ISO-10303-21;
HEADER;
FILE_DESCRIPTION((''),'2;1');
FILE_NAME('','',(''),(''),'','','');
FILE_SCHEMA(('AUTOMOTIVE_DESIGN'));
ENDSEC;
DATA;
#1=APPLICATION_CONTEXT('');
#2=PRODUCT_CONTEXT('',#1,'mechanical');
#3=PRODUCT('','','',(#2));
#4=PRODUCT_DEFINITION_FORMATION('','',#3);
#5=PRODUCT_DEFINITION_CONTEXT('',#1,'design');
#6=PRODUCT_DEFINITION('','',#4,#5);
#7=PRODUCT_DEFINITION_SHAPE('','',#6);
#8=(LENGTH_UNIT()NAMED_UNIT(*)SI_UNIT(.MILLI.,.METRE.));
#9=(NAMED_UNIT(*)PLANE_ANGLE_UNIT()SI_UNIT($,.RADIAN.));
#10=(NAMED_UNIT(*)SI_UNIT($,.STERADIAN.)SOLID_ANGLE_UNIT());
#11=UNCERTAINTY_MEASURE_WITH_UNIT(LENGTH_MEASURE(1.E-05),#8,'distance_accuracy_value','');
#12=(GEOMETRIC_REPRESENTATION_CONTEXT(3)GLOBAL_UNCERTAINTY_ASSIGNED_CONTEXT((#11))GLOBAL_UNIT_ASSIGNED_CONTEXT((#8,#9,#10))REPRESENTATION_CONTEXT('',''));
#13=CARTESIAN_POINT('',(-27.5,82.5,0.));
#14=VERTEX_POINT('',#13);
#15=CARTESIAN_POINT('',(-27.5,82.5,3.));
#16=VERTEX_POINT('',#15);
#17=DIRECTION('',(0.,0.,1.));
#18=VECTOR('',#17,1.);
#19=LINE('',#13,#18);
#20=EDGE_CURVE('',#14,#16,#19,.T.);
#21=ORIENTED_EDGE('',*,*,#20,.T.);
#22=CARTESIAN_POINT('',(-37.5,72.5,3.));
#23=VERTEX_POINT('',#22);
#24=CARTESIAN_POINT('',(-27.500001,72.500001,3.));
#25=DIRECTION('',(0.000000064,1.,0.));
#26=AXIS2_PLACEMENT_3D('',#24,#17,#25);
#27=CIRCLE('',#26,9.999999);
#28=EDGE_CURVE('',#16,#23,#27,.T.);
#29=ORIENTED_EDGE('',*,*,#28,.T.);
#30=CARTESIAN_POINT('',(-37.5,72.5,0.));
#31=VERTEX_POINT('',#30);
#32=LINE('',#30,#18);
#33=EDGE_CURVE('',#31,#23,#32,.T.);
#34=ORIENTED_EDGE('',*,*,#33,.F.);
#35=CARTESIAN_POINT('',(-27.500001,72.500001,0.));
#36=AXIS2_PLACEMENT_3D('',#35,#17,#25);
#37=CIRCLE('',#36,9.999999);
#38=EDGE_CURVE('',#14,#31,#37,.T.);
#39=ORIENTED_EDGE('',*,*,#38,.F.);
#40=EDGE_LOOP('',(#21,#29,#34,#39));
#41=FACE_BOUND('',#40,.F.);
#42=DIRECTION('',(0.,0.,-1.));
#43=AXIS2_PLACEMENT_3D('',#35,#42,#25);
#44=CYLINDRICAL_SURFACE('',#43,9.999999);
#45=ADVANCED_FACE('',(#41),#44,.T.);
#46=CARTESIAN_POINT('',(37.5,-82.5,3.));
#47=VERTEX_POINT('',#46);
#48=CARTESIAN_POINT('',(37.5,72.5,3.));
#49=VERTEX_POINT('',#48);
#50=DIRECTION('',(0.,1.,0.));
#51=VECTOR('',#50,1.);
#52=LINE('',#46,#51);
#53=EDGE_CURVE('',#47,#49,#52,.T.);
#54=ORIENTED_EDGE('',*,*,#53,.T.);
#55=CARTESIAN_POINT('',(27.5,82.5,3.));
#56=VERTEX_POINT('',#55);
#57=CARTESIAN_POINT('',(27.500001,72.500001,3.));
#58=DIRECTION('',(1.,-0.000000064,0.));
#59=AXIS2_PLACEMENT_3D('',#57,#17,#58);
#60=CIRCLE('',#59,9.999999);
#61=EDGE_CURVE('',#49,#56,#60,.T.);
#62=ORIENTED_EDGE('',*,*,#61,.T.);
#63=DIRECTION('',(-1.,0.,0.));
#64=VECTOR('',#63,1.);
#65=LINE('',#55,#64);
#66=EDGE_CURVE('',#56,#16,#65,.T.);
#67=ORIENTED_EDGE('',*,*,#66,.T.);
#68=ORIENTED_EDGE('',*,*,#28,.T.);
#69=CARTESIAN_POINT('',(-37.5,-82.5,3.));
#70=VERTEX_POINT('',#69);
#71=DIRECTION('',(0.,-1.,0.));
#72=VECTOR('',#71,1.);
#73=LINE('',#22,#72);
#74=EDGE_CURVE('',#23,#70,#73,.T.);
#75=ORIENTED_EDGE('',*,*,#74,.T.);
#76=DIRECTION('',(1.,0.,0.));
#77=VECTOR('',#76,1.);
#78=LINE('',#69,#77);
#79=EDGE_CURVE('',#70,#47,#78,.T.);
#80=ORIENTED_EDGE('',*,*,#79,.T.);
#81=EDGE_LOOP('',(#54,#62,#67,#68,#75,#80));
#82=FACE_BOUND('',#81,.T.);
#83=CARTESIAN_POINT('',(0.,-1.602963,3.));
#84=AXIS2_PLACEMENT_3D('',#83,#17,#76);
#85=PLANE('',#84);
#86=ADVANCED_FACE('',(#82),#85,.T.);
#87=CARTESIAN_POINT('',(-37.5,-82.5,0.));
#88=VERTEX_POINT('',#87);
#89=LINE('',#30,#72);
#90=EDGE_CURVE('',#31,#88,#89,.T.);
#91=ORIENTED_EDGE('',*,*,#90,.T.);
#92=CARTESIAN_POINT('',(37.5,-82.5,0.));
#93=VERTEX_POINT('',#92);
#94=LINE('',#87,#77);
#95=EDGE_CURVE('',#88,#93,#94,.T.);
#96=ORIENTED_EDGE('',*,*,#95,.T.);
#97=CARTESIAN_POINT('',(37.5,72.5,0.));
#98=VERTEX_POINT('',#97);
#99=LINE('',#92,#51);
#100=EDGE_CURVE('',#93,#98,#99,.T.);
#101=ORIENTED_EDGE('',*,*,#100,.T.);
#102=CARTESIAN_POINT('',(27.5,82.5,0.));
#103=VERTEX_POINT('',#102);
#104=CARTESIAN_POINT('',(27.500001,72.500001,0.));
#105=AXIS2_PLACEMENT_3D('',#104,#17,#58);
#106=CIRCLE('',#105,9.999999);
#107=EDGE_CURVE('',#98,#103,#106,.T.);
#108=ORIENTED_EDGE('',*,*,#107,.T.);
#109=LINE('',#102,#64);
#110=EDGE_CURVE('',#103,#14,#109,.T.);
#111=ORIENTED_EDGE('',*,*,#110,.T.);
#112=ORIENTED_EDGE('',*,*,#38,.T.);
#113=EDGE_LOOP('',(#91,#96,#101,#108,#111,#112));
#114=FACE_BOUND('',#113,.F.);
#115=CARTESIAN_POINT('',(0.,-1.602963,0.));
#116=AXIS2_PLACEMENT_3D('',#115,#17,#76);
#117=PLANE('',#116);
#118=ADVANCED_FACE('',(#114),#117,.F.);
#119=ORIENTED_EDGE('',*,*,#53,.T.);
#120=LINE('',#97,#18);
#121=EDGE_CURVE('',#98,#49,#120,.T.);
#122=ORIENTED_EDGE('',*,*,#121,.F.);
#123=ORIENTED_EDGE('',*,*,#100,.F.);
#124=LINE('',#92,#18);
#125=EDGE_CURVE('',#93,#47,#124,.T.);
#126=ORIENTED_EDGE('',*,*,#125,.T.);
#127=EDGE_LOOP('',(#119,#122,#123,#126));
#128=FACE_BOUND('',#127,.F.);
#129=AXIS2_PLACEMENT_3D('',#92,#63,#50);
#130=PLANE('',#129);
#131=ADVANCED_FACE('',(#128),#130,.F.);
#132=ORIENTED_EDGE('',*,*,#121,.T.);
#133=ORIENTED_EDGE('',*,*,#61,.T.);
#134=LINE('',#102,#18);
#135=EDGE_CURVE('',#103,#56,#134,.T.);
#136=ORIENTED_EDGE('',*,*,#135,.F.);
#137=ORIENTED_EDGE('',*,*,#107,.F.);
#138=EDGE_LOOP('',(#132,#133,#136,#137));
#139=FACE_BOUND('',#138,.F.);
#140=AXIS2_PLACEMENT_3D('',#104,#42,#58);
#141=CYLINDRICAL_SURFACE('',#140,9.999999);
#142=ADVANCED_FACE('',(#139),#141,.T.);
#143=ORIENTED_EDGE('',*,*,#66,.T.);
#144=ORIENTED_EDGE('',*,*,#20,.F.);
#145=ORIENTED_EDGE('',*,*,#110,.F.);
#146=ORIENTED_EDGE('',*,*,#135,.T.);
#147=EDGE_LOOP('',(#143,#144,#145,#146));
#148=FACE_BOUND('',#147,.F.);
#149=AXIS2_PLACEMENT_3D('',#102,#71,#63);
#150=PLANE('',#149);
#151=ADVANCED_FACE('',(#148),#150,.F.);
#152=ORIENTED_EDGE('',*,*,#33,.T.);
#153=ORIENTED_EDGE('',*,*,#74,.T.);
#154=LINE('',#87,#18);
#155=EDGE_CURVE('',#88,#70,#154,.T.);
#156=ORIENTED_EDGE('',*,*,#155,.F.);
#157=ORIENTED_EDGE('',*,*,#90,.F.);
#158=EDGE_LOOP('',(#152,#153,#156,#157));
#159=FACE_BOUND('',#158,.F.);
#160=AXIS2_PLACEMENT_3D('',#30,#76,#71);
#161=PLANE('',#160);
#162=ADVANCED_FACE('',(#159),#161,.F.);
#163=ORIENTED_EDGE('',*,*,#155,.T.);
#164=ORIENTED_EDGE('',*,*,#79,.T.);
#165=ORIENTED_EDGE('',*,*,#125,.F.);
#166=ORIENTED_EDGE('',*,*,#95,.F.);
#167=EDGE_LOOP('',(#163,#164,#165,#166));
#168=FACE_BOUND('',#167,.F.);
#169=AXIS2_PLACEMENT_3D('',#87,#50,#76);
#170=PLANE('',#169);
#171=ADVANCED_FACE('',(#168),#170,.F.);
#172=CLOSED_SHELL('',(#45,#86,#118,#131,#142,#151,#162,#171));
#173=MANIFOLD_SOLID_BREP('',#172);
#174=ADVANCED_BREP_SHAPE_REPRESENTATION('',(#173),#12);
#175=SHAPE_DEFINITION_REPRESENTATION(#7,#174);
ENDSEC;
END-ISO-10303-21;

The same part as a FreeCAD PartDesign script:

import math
import FreeCAD as App
import Part
import Sketcher
from FreeCAD import Vector

doc = App.newDocument("Part")
body = doc.addObject("PartDesign::Body", "Body")

# Sketch on XY plane
sketch1 = body.newObject("Sketcher::SketchObject", "Sketch")
sketch1.AttachmentSupport = (doc.getObject("XY_Plane"), [""])
sketch1.MapMode = "FlatFace"
sketch1.addGeometry([
    Part.ArcOfCircle(Part.Circle(Vector(28, 73, 0), Vector(0, 0, 1), 10), math.radians(0), math.radians(90)),  # 0
    Part.LineSegment(Vector(28, 82, 0), Vector(-28, 82, 0)),  # 1
    Part.ArcOfCircle(Part.Circle(Vector(-28, 73, 0), Vector(0, 0, 1), 10), math.radians(90), math.radians(180)),  # 2
    Part.LineSegment(Vector(-38, 72, 0), Vector(-38, -82, 0)),  # 3
    Part.LineSegment(Vector(-38, -82, 0), Vector(38, -82, 0)),  # 4
    Part.LineSegment(Vector(38, -82, 0), Vector(38, 72, 0)),  # 5
], False)
sketch1.addConstraint([
    Sketcher.Constraint("Tangent", 0, 2, 1, 1),
    Sketcher.Constraint("Tangent", 1, 2, 2, 1),
    Sketcher.Constraint("Tangent", 2, 2, 3, 1),
    Sketcher.Constraint("Coincident", 3, 2, 4, 1),
    Sketcher.Constraint("Coincident", 4, 2, 5, 1),
    Sketcher.Constraint("Tangent", 5, 2, 0, 1),
    Sketcher.Constraint("Horizontal", 1),
    Sketcher.Constraint("Vertical", 3),
    Sketcher.Constraint("Horizontal", 4),
    Sketcher.Constraint("Vertical", 5),
    Sketcher.Constraint("Equal", 0, 2),
    Sketcher.Constraint("Radius", 0, 9.999999),
    Sketcher.Constraint("DistanceX", 1, 2, 1, 1, 55.0),
    Sketcher.Constraint("DistanceY", 3, 2, 3, 1, 155.0),
    Sketcher.Constraint("DistanceX", -1, 1, 0, 3, 27.500001),
    Sketcher.Constraint("DistanceY", -1, 1, 0, 3, 72.500001),
])
pad1 = body.newObject("PartDesign::Pad", "Pad")
pad1.Profile = sketch1
pad1.Length = 3

doc.recompute()
